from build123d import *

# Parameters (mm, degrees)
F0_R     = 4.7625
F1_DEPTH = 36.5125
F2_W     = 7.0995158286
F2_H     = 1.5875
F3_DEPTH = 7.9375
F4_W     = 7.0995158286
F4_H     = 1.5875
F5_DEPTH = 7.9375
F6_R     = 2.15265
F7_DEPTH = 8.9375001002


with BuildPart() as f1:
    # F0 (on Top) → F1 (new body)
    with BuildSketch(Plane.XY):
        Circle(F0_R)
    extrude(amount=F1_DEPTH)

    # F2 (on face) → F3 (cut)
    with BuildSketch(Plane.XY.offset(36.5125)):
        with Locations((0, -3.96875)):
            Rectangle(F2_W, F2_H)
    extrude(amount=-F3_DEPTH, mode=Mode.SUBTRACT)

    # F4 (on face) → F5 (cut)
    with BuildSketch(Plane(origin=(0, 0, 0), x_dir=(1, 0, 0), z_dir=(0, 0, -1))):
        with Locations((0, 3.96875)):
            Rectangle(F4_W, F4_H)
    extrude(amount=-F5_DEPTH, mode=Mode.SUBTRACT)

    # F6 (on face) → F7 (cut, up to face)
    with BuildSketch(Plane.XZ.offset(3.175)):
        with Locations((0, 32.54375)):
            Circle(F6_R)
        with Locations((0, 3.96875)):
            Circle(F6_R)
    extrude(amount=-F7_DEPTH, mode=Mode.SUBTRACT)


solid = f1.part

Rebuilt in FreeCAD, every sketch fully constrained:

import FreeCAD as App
import Part
import Sketcher

V = App.Vector
Q = App.Units.Quantity


def add_polygon(sketch, points):
    """Adds a closed chain of lines whose ends are joined by coincident constraints."""
    first, n = sketch.GeometryCount, len(points)
    for a, b in zip(points, points[1:] + points[:1]):
        sketch.addGeometry(Part.LineSegment(App.Vector(*a, 0), App.Vector(*b, 0)), False)
    for i in range(n):
        sketch.addConstraint(Sketcher.Constraint("Coincident", first + i, 2, first + (i + 1) % n, 1))

doc = App.newDocument("Part")
body = doc.addObject("PartDesign::Body", "Body")

sketch1 = body.newObject("Sketcher::SketchObject", "Sketch")
sketch1.AttachmentSupport = (doc.getObject("XY_Plane"), [""])
sketch1.MapMode = "FlatFace"
sketch1.addGeometry(Part.Circle(V(0, 0, 0), V(0, 0, 1), 4.8), False)
sketch1.addConstraint([
    Sketcher.Constraint("Coincident", 0, 3, -1, 1),
    Sketcher.Constraint("Diameter", 0, Q("0.375 in")),
])
pad1 = body.newObject("PartDesign::Pad", "Pad")
pad1.Profile = sketch1
pad1.Length = Q("1.4375 in")

sketch2 = body.newObject("Sketcher::SketchObject", "Sketch001")
sketch2.AttachmentSupport = (doc.getObject("XY_Plane"), [""])
sketch2.MapMode = "FlatFace"
sketch2.AttachmentOffset = App.Placement(V(0, 0, 1.4375 * 25.4), App.Rotation())
add_polygon(sketch2, [(-3.5, -3.2), (-3.5, -4.8), (3.5, -4.8), (3.5, -3.2)])
sketch2.addConstraint([
    Sketcher.Constraint("Vertical", 0),
    Sketcher.Constraint("Horizontal", 1),
    Sketcher.Constraint("Vertical", 2),
    Sketcher.Constraint("Horizontal", 3),
    Sketcher.Constraint("DistanceY", 0, 2, 0, 1, Q("0.0625 in")),
    Sketcher.Constraint("DistanceY", 0, 2, -1, 1, Q("0.1875 in")),
    Sketcher.Constraint("DistanceX", 1, 1, 1, 2, 7.099516),
    Sketcher.Constraint("DistanceX", 0, 2, -1, 1, 3.549758),
])
pocket1 = body.newObject("PartDesign::Pocket", "Pocket")
pocket1.Profile = sketch2
pocket1.Length = Q("0.3125 in")

sketch3 = body.newObject("Sketcher::SketchObject", "Sketch002")
sketch3.AttachmentSupport = (doc.getObject("XY_Plane"), [""])
sketch3.MapMode = "FlatFace"
add_polygon(sketch3, [(-3.5, -4.8), (-3.5, -3.2), (3.5, -3.2), (3.5, -4.8)])
sketch3.addConstraint([
    Sketcher.Constraint("Vertical", 0),
    Sketcher.Constraint("Horizontal", 1),
    Sketcher.Constraint("Vertical", 2),
    Sketcher.Constraint("Horizontal", 3),
    Sketcher.Constraint("DistanceY", 0, 1, 0, 2, Q("0.0625 in")),
    Sketcher.Constraint("DistanceY", 0, 2, -1, 1, Q("0.125 in")),
    Sketcher.Constraint("DistanceX", 1, 1, 1, 2, 7.099516),
    Sketcher.Constraint("DistanceX", 0, 2, -1, 1, 3.549758),
])
pocket2 = body.newObject("PartDesign::Pocket", "Pocket001")
pocket2.Profile = sketch3
pocket2.Length = Q("0.3125 in")
pocket2.Reversed = True

sketch4 = body.newObject("Sketcher::SketchObject", "Sketch003")
sketch4.AttachmentSupport = (doc.getObject("XZ_Plane"), [""])
sketch4.MapMode = "FlatFace"
sketch4.AttachmentOffset = App.Placement(V(0, 0, 0.125 * 25.4), App.Rotation())
sketch4.addGeometry([
    Part.Circle(V(0, 32.5, 0), V(0, 0, 1), 2.2),
    Part.Circle(V(0, 4, 0), V(0, 0, 1), 2.2),
], False)
sketch4.addConstraint([
    Sketcher.Constraint("Equal", 0, 1),
    Sketcher.Constraint("PointOnObject", 0, 3, -2),
    Sketcher.Constraint("PointOnObject", 1, 3, -2),
    Sketcher.Constraint("Diameter", 0, Q("0.1695 in")),
    Sketcher.Constraint("DistanceY", -1, 1, 0, 3, Q("1.28125 in")),
    Sketcher.Constraint("DistanceY", -1, 1, 1, 3, Q("0.15625 in")),
])
pocket3 = body.newObject("PartDesign::Pocket", "Pocket002")
pocket3.Profile = sketch4
pocket3.Length = 8.9375

doc.recompute()
